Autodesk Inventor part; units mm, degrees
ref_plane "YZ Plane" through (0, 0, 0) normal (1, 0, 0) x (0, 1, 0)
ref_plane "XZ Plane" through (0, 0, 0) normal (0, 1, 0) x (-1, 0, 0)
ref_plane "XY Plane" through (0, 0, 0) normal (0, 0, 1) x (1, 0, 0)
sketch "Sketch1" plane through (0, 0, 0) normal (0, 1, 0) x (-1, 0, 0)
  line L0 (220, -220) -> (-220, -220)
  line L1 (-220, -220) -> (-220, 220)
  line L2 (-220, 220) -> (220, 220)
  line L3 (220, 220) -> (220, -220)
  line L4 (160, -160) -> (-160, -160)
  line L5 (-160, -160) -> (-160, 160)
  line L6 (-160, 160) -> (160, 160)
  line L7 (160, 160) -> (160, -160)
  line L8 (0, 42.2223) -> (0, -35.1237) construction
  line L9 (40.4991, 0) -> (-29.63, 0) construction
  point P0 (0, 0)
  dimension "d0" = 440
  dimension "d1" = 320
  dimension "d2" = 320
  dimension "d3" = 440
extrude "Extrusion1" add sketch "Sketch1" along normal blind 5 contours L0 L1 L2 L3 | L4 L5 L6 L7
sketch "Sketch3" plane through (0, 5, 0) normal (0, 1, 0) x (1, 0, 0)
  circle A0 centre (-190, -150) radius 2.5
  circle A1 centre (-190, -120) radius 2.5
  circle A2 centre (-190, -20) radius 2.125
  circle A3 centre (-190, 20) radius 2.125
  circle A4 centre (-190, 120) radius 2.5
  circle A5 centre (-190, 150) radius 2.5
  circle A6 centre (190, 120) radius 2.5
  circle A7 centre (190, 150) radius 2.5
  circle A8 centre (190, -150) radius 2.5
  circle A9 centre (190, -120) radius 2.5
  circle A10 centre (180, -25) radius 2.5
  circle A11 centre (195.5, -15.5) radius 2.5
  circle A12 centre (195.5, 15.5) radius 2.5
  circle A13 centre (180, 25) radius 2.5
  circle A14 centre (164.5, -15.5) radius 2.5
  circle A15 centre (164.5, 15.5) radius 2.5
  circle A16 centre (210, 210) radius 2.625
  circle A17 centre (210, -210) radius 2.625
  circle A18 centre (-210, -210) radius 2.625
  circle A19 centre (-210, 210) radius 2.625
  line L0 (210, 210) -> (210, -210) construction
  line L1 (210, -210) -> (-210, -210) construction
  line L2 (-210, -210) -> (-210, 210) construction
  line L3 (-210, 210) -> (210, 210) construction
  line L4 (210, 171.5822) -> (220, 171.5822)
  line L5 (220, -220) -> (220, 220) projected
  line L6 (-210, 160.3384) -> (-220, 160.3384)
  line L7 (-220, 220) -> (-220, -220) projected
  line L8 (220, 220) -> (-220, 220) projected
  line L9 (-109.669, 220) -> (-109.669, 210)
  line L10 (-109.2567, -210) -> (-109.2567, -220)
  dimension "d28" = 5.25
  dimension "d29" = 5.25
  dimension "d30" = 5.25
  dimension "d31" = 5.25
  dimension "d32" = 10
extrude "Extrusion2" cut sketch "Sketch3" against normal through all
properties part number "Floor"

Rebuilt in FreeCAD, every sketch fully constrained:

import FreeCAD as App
import Part
import Sketcher

V = App.Vector

doc = App.newDocument("Part")
body = doc.addObject("PartDesign::Body", "Body")

sketch1 = body.newObject("Sketcher::SketchObject", "Sketch")
sketch1.AttachmentSupport = (doc.getObject("XZ_Plane"), [""])
sketch1.MapMode = "FlatFace"
sketch1.addGeometry(Part.LineSegment(V(220, -220, 0), V(-220, -220, 0)), False)
sketch1.addGeometry(Part.LineSegment(V(-220, -220, 0), V(-220, 220, 0)), False)
sketch1.addGeometry(Part.LineSegment(V(-220, 220, 0), V(220, 220, 0)), False)
sketch1.addGeometry(Part.LineSegment(V(220, 220, 0), V(220, -220, 0)), False)
sketch1.addConstraint(Sketcher.Constraint("Coincident", 0, 2, 1, 1))
sketch1.addConstraint(Sketcher.Constraint("Coincident", 1, 2, 2, 1))
sketch1.addConstraint(Sketcher.Constraint("Coincident", 2, 2, 3, 1))
sketch1.addConstraint(Sketcher.Constraint("Coincident", 3, 2, 0, 1))
sketch1.addConstraint(Sketcher.Constraint("Horizontal", 0))
sketch1.addConstraint(Sketcher.Constraint("Vertical", 1))
sketch1.addConstraint(Sketcher.Constraint("Horizontal", 2))
sketch1.addConstraint(Sketcher.Constraint("Vertical", 3))
sketch1.addConstraint(Sketcher.Constraint("Symmetric", 0, 2, 2, 2, -1, 1))
sketch1.addConstraint(Sketcher.Constraint("Equal", 2, 1))
sketch1.addConstraint(Sketcher.Constraint("DistanceX", 0, 2, 0, 1, 440.0))
pad1 = body.newObject("PartDesign::Pad", "Pad")
pad1.Profile = sketch1
pad1.Length = 5
pad1.Reversed = True

sketch2 = body.newObject("Sketcher::SketchObject", "Sketch001")
sketch2.AttachmentSupport = (doc.getObject("XZ_Plane"), [""])
sketch2.MapMode = "FlatFace"
sketch2.AttachmentOffset = App.Placement(V(0, 0, -5), App.Rotation())
sketch2.addGeometry(Part.Circle(V(-190, 150, 0), V(0, 0, 1), 2.5), False)
sketch2.addGeometry(Part.Circle(V(-190, 120, 0), V(0, 0, 1), 2.5), False)
sketch2.addGeometry(Part.Circle(V(-190, 20, 0), V(0, 0, 1), 2.1), False)
sketch2.addGeometry(Part.Circle(V(-190, -20, 0), V(0, 0, 1), 2.1), False)
sketch2.addGeometry(Part.Circle(V(-190, -120, 0), V(0, 0, 1), 2.5), False)
sketch2.addGeometry(Part.Circle(V(-190, -150, 0), V(0, 0, 1), 2.5), False)
sketch2.addGeometry(Part.Circle(V(190, -120, 0), V(0, 0, 1), 2.5), False)
sketch2.addGeometry(Part.Circle(V(190, -150, 0), V(0, 0, 1), 2.5), False)
sketch2.addGeometry(Part.Circle(V(190, 150, 0), V(0, 0, 1), 2.5), False)
sketch2.addGeometry(Part.Circle(V(190, 120, 0), V(0, 0, 1), 2.5), False)
sketch2.addGeometry(Part.Circle(V(180, 25, 0), V(0, 0, 1), 2.5), False)
sketch2.addGeometry(Part.Circle(V(195.5, 15.5, 0), V(0, 0, 1), 2.5), False)
sketch2.addGeometry(Part.Circle(V(195.5, -15.5, 0), V(0, 0, 1), 2.5), False)
sketch2.addGeometry(Part.Circle(V(180, -25, 0), V(0, 0, 1), 2.5), False)
sketch2.addGeometry(Part.Circle(V(164.5, 15.5, 0), V(0, 0, 1), 2.5), False)
sketch2.addGeometry(Part.Circle(V(164.5, -15.5, 0), V(0, 0, 1), 2.5), False)
sketch2.addGeometry(Part.Circle(V(210, -210, 0), V(0, 0, 1), 2.6), False)
sketch2.addGeometry(Part.Circle(V(210, 210, 0), V(0, 0, 1), 2.6), False)
sketch2.addGeometry(Part.Circle(V(-210, 210, 0), V(0, 0, 1), 2.6), False)
sketch2.addGeometry(Part.Circle(V(-210, -210, 0), V(0, 0, 1), 2.6), False)
sketch2.addConstraint(Sketcher.Constraint("Equal", 0, 1))
sketch2.addConstraint(Sketcher.Constraint("Equal", 2, 3))
sketch2.addConstraint(Sketcher.Constraint("Equal", 1, 4))
sketch2.addConstraint(Sketcher.Constraint("Equal", 4, 5))
sketch2.addConstraint(Sketcher.Constraint("Equal", 5, 6))
sketch2.addConstraint(Sketcher.Constraint("Equal", 6, 7))
sketch2.addConstraint(Sketcher.Constraint("Equal", 7, 8))
sketch2.addConstraint(Sketcher.Constraint("Equal", 8, 9))
sketch2.addConstraint(Sketcher.Constraint("Equal", 9, 10))
sketch2.addConstraint(Sketcher.Constraint("Equal", 10, 11))
sketch2.addConstraint(Sketcher.Constraint("Equal", 11, 12))
sketch2.addConstraint(Sketcher.Constraint("Equal", 12, 13))
sketch2.addConstraint(Sketcher.Constraint("Equal", 13, 14))
sketch2.addConstraint(Sketcher.Constraint("Equal", 14, 15))
sketch2.addConstraint(Sketcher.Constraint("Equal", 16, 17))
sketch2.addConstraint(Sketcher.Constraint("Equal", 17, 18))
sketch2.addConstraint(Sketcher.Constraint("Equal", 18, 19))
sketch2.addConstraint(Sketcher.Constraint("Symmetric", 1, 3, 6, 3, -1, 1))
sketch2.addConstraint(Sketcher.Constraint("Symmetric", 0, 3, 7, 3, -1, 1))
sketch2.addConstraint(Sketcher.Constraint("Symmetric", 5, 3, 8, 3, -1, 1))
sketch2.addConstraint(Sketcher.Constraint("Symmetric", 4, 3, 9, 3, -1, 1))
sketch2.addConstraint(Sketcher.Constraint("Symmetric", 16, 3, 18, 3, -1, 1))
sketch2.addConstraint(Sketcher.Constraint("Symmetric", 17, 3, 19, 3, -1, 1))
sketch2.addConstraint(Sketcher.Constraint("Symmetric", 4, 3, 6, 3, -2))
sketch2.addConstraint(Sketcher.Constraint("Symmetric", 5, 3, 7, 3, -2))
sketch2.addConstraint(Sketcher.Constraint("Symmetric", 17, 3, 18, 3, -2))
sketch2.addConstraint(Sketcher.Constraint("Symmetric", 2, 3, 3, 3, -1))
sketch2.addConstraint(Sketcher.Constraint("Symmetric", 11, 3, 12, 3, -1))
sketch2.addConstraint(Sketcher.Constraint("Symmetric", 10, 3, 13, 3, -1))
sketch2.addConstraint(Sketcher.Constraint("Symmetric", 14, 3, 15, 3, -1))
sketch2.addConstraint(Sketcher.Constraint("Horizontal", 11, 3, 14, 3))
sketch2.addConstraint(Sketcher.Constraint("Vertical", 0, 3, 1, 3))
sketch2.addConstraint(Sketcher.Constraint("Vertical", 1, 3, 2, 3))
sketch2.addConstraint(Sketcher.Constraint("Diameter", 16, 5.25))
sketch2.addConstraint(Sketcher.Constraint("Diameter", 0, 5.0))
sketch2.addConstraint(Sketcher.Constraint("DistanceX", 10, 3, 9, 3, 10.0))
sketch2.addConstraint(Sketcher.Constraint("Diameter", 2, 4.25))
sketch2.addConstraint(Sketcher.Constraint("DistanceX", 0, 3, -1, 1, 190.0))
sketch2.addConstraint(Sketcher.Constraint("DistanceY", -1, 1, 0, 3, 150.0))
sketch2.addConstraint(Sketcher.Constraint("DistanceY", -1, 1, 1, 3, 120.0))
sketch2.addConstraint(Sketcher.Constraint("DistanceY", -1, 1, 2, 3, 20.0))
sketch2.addConstraint(Sketcher.Constraint("DistanceY", -1, 1, 10, 3, 25.0))
sketch2.addConstraint(Sketcher.Constraint("DistanceX", -1, 1, 16, 3, 210.0))
sketch2.addConstraint(Sketcher.Constraint("DistanceY", 16, 3, -1, 1, 210.0))
sketch2.addConstraint(Sketcher.Constraint("DistanceY", 12, 3, 11, 3, 31.0))
sketch2.addConstraint(Sketcher.Constraint("DistanceX", 14, 3, 11, 3, 31.0))
sketch2.addConstraint(Sketcher.Constraint("DistanceX", -1, 1, 11, 3, 195.5))
pocket1 = body.newObject("PartDesign::Pocket", "Pocket")
pocket1.Profile = sketch2
pocket1.Type = "ThroughAll"
pocket1.Reversed = True

doc.recompute()
